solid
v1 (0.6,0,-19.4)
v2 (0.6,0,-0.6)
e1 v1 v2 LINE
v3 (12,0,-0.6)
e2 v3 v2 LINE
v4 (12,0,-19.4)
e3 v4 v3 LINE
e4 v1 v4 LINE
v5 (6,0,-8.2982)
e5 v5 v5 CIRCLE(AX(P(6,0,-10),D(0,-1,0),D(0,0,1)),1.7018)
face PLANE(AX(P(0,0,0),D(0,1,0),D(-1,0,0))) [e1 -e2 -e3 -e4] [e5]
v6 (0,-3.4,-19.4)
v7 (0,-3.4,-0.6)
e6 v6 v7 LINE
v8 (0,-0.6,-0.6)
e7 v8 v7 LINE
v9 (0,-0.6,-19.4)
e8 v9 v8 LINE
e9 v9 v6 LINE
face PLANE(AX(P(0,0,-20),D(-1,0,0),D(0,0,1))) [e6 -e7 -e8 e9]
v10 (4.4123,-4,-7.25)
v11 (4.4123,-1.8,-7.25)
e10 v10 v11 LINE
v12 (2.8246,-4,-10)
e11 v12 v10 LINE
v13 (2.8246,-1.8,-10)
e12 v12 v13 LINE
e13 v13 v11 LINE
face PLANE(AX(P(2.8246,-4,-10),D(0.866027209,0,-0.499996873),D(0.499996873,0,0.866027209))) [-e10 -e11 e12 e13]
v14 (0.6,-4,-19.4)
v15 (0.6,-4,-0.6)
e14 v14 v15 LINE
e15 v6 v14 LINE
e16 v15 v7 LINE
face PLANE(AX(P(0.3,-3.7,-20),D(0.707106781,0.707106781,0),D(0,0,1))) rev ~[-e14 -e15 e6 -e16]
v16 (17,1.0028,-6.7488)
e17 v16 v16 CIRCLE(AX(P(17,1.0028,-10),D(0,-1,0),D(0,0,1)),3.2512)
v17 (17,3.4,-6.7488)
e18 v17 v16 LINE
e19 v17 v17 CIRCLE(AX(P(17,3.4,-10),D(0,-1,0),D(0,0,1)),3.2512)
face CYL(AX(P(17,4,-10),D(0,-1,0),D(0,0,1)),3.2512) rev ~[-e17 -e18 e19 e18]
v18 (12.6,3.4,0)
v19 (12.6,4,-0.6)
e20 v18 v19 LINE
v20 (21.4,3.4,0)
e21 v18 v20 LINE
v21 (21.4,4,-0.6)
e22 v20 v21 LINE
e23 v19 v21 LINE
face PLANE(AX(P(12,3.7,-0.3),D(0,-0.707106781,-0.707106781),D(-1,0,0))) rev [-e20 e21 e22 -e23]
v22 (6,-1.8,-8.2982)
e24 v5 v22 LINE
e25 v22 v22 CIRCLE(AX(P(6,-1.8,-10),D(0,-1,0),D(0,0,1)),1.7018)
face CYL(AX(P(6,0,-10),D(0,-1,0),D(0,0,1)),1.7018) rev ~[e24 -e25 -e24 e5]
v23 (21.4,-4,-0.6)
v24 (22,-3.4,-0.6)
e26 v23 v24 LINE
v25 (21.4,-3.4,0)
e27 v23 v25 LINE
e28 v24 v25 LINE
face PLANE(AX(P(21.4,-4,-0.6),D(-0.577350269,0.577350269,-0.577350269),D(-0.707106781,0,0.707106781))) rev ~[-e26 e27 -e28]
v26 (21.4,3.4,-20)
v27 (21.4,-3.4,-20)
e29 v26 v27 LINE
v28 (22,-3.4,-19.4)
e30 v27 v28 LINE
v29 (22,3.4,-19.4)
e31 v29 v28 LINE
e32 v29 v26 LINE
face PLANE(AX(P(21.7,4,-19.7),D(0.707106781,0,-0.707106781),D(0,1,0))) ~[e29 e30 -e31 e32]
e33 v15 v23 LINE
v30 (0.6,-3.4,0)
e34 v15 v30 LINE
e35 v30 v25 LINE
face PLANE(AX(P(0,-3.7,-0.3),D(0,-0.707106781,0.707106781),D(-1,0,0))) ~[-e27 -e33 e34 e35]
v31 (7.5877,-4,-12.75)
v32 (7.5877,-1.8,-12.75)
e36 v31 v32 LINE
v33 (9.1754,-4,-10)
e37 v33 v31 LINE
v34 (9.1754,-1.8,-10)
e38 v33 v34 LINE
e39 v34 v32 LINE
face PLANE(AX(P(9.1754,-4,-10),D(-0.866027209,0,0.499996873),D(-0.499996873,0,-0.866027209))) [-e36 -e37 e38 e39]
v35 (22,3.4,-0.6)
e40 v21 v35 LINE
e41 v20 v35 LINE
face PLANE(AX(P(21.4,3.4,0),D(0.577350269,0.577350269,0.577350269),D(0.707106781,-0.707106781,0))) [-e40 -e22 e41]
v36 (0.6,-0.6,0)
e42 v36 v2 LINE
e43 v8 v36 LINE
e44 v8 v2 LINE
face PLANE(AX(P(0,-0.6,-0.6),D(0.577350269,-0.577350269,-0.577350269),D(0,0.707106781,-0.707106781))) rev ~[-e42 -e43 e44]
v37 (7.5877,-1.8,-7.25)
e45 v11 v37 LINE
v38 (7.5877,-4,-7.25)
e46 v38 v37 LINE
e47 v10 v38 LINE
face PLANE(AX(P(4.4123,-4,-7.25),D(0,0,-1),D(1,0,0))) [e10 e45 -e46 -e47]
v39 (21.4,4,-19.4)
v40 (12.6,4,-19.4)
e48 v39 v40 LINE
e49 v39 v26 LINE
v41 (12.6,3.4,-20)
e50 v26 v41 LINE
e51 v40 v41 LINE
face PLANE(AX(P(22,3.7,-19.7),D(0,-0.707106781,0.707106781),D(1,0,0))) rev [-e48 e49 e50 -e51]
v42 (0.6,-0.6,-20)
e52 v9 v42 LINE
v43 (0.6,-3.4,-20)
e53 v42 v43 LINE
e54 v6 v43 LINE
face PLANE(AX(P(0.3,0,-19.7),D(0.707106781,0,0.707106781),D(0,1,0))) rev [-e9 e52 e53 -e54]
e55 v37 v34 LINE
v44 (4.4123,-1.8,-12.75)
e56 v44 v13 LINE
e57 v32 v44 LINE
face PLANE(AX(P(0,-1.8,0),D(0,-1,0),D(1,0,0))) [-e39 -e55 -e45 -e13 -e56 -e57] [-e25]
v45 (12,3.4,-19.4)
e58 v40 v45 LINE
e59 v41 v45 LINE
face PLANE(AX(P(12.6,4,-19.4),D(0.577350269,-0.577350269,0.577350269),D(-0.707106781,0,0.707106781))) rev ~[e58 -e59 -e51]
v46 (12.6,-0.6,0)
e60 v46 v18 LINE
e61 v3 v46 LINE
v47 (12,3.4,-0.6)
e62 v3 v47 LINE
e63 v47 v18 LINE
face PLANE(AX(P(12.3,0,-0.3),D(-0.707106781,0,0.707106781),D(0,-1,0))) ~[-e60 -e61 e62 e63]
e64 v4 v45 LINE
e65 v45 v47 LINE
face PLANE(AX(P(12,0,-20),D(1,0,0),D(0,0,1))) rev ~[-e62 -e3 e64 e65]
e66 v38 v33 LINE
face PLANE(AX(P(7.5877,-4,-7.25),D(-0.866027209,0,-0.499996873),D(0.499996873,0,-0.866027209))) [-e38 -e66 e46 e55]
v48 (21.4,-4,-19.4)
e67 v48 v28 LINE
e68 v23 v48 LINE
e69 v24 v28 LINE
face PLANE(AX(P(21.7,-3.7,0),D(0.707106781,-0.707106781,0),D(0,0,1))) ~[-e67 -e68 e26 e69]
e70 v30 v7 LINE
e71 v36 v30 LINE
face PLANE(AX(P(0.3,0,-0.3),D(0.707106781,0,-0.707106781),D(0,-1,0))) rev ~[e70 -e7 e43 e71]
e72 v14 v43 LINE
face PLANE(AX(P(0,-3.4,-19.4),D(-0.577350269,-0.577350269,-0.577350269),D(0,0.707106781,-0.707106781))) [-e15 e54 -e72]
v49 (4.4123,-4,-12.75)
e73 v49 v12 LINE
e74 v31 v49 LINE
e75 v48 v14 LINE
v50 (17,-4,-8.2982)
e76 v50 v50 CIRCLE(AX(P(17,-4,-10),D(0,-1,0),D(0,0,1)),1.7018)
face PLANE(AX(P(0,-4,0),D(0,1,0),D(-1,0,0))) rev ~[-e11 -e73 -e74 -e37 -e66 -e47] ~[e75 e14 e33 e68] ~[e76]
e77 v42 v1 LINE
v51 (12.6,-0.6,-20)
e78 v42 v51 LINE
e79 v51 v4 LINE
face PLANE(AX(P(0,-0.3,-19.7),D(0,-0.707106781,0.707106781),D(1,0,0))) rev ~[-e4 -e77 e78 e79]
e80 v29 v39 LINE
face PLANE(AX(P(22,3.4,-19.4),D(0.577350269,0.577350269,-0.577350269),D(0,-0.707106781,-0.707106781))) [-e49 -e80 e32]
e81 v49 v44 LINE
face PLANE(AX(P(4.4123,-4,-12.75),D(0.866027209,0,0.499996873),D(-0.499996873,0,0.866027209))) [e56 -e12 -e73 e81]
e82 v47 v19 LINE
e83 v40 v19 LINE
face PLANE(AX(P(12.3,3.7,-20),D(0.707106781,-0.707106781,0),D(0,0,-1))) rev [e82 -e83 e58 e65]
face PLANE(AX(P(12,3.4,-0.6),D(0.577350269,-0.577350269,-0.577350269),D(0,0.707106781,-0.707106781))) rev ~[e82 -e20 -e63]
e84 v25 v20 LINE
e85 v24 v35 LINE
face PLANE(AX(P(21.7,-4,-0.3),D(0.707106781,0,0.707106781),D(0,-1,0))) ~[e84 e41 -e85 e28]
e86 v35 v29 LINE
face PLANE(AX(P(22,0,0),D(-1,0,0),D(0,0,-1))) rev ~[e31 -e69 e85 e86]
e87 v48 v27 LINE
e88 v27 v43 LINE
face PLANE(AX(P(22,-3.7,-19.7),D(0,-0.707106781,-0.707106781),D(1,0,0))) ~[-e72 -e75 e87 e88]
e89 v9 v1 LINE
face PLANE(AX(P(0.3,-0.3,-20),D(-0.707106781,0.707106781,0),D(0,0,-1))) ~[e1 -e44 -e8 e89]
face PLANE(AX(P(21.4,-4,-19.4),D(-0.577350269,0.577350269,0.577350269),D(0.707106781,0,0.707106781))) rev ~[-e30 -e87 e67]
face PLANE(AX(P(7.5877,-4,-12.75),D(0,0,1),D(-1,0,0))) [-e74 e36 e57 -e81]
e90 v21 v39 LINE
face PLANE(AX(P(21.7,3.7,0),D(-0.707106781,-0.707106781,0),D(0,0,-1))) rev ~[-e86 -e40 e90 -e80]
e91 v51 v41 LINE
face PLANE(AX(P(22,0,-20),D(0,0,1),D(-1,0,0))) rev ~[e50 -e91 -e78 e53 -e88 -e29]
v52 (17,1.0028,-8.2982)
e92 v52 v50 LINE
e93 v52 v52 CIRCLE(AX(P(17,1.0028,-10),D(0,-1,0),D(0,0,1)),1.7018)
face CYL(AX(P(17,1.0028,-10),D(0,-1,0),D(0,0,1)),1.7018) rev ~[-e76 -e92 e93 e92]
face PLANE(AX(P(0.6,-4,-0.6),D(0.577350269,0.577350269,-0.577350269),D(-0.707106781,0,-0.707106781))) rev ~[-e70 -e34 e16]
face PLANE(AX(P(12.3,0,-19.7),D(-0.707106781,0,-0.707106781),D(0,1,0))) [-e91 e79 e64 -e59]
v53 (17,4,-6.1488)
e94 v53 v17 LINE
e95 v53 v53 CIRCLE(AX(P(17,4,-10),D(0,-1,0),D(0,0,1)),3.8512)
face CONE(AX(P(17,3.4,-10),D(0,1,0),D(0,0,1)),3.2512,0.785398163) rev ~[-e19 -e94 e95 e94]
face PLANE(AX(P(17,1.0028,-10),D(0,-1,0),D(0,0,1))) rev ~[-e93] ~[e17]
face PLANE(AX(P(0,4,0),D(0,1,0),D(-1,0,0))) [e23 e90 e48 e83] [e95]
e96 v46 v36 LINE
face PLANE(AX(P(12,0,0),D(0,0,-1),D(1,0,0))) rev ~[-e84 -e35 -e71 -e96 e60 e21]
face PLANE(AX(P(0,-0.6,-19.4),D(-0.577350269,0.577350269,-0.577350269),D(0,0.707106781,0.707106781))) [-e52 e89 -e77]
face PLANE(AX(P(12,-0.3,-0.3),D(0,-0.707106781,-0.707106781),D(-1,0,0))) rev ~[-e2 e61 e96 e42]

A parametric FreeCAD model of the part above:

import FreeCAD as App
import Part
import Sketcher
Q = App.Units.Quantity


def edges_at(feature, points):
    """Names of the edges that pass closest to the given points."""
    edges = feature.Shape.Edges
    near = lambda p: min(range(len(edges)), key=lambda i: edges[i].distToShape(Part.Vertex(*p))[0])
    return sorted({f"Edge{near(p) + 1}" for p in points})

doc = App.newDocument("Part")
body = doc.addObject("PartDesign::Body", "Body")

sketch1 = body.newObject("Sketcher::SketchObject", "Sketch")
sketch1.AttachmentSupport = (doc.getObject("XZ_Plane"), [""])
sketch1.MapMode = "FlatFace"
sketch1.addGeometry(Part.LineSegment(App.Vector(0, -20, 0), App.Vector(0, 0, 0)), False)
sketch1.addGeometry(Part.LineSegment(App.Vector(0, 0, 0), App.Vector(22, 0, 0)), False)
sketch1.addGeometry(Part.LineSegment(App.Vector(22, 0, 0), App.Vector(22, -20, 0)), False)
sketch1.addGeometry(Part.LineSegment(App.Vector(22, -20, 0), App.Vector(0, -20, 0)), False)
sketch1.addConstraint(Sketcher.Constraint("Coincident", 0, 2, 1, 1))
sketch1.addConstraint(Sketcher.Constraint("Coincident", 1, 2, 2, 1))
sketch1.addConstraint(Sketcher.Constraint("Coincident", 2, 2, 3, 1))
sketch1.addConstraint(Sketcher.Constraint("Coincident", 3, 2, 0, 1))
sketch1.addConstraint(Sketcher.Constraint("Vertical", 0))
sketch1.addConstraint(Sketcher.Constraint("Horizontal", 1))
sketch1.addConstraint(Sketcher.Constraint("Vertical", 2))
sketch1.addConstraint(Sketcher.Constraint("Horizontal", 3))
sketch1.addConstraint(Sketcher.Constraint("Coincident", 0, 2, -1, 1))
sketch1.addConstraint(Sketcher.Constraint("DistanceY", 0, 1, 0, 2, 20.0))
sketch1.addConstraint(Sketcher.Constraint("DistanceX", 1, 1, 1, 2, 22.0))
pad1 = body.newObject("PartDesign::Pad", "Pad")
pad1.Profile = sketch1
pad1.Length = 4

sketch2 = body.newObject("Sketcher::SketchObject", "Sketch001")
sketch2.AttachmentSupport = (doc.getObject("XZ_Plane"), [""])
sketch2.MapMode = "FlatFace"
sketch2.addGeometry(Part.Circle(App.Vector(6, -10, 0), App.Vector(0, 0, 1), 1.7), False)
sketch2.addConstraint(Sketcher.Constraint("DistanceX", -1, 1, 0, 3, 6.0))
sketch2.addConstraint(Sketcher.Constraint("DistanceY", 0, 3, -1, 1, 10.0))
sketch2.addConstraint(Sketcher.Constraint("Diameter", 0, 3.4036))
doc.recompute()
hole = body.newObject("PartDesign::Hole", "Hole")
hole.Profile = sketch2
hole.ThreadType = "None"
hole.Diameter = 3.4036
hole.DepthType = "ThroughAll"
hole.Reversed = True

sketch3 = body.newObject("Sketcher::SketchObject", "Sketch002")
sketch3.AttachmentSupport = (doc.getObject("XZ_Plane"), [""])
sketch3.MapMode = "FlatFace"
sketch3.AttachmentOffset = App.Placement(App.Vector(0, 0, 4), App.Rotation())
sketch3.addGeometry(Part.LineSegment(App.Vector(7.6, -12.8, 0), App.Vector(9.2, -10, 0)), False)
sketch3.addGeometry(Part.LineSegment(App.Vector(9.2, -10, 0), App.Vector(7.6, -7.2, 0)), False)
sketch3.addGeometry(Part.LineSegment(App.Vector(7.6, -7.2, 0), App.Vector(4.4, -7.2, 0)), False)
sketch3.addGeometry(Part.LineSegment(App.Vector(4.4, -7.2, 0), App.Vector(2.8, -10, 0)), False)
sketch3.addGeometry(Part.LineSegment(App.Vector(2.8, -10, 0), App.Vector(4.4, -12.8, 0)), False)
sketch3.addGeometry(Part.LineSegment(App.Vector(4.4, -12.8, 0), App.Vector(7.6, -12.8, 0)), False)
sketch3.addConstraint(Sketcher.Constraint("Coincident", 0, 2, 1, 1))
sketch3.addConstraint(Sketcher.Constraint("Coincident", 1, 2, 2, 1))
sketch3.addConstraint(Sketcher.Constraint("Coincident", 2, 2, 3, 1))
sketch3.addConstraint(Sketcher.Constraint("Coincident", 3, 2, 4, 1))
sketch3.addConstraint(Sketcher.Constraint("Coincident", 4, 2, 5, 1))
sketch3.addConstraint(Sketcher.Constraint("Coincident", 5, 2, 0, 1))
sketch3.addConstraint(Sketcher.Constraint("Horizontal", 2))
sketch3.addConstraint(Sketcher.Constraint("Horizontal", 5))
sketch3.addConstraint(Sketcher.Constraint("Parallel", 0, 3))
sketch3.addConstraint(Sketcher.Constraint("Parallel", 1, 4))
sketch3.addConstraint(Sketcher.Constraint("Horizontal", 0, 2, 3, 2))
sketch3.addConstraint(Sketcher.Constraint("Vertical", 2, 2, 4, 2))
sketch3.addConstraint(Sketcher.Constraint("Vertical", 1, 2, 5, 2))
sketch3.addConstraint(Sketcher.Constraint("DistanceY", 4, 2, 2, 2, 5.5))
sketch3.addConstraint(Sketcher.Constraint("Angle", 0, Q("60.0002 deg")))
sketch3.addConstraint(Sketcher.Constraint("DistanceY", 0, 2, -1, 1, 10.0))
sketch3.addConstraint(Sketcher.Constraint("DistanceX", 2, 2, 2, 1, 3.1754))
sketch3.addConstraint(Sketcher.Constraint("DistanceX", -1, 1, 0, 2, 9.1754))
pocket1 = body.newObject("PartDesign::Pocket", "Pocket")
pocket1.Profile = sketch3
pocket1.Length = 2.2

sketch4 = body.newObject("Sketcher::SketchObject", "Sketch003")
sketch4.AttachmentSupport = (doc.getObject("XZ_Plane"), [""])
sketch4.MapMode = "FlatFace"
sketch4.addGeometry(Part.LineSegment(App.Vector(12, -20, 0), App.Vector(12, 0, 0)), False)
sketch4.addGeometry(Part.LineSegment(App.Vector(12, 0, 0), App.Vector(22, 0, 0)), False)
sketch4.addGeometry(Part.LineSegment(App.Vector(22, 0, 0), App.Vector(22, -20, 0)), False)
sketch4.addGeometry(Part.LineSegment(App.Vector(22, -20, 0), App.Vector(12, -20, 0)), False)
sketch4.addConstraint(Sketcher.Constraint("Coincident", 0, 2, 1, 1))
sketch4.addConstraint(Sketcher.Constraint("Coincident", 1, 2, 2, 1))
sketch4.addConstraint(Sketcher.Constraint("Coincident", 2, 2, 3, 1))
sketch4.addConstraint(Sketcher.Constraint("Coincident", 3, 2, 0, 1))
sketch4.addConstraint(Sketcher.Constraint("Vertical", 0))
sketch4.addConstraint(Sketcher.Constraint("Horizontal", 1))
sketch4.addConstraint(Sketcher.Constraint("Vertical", 2))
sketch4.addConstraint(Sketcher.Constraint("Horizontal", 3))
sketch4.addConstraint(Sketcher.Constraint("PointOnObject", 0, 2, -1))
sketch4.addConstraint(Sketcher.Constraint("DistanceY", 0, 1, 0, 2, 20.0))
sketch4.addConstraint(Sketcher.Constraint("DistanceX", -1, 1, 0, 2, 12.0))
sketch4.addConstraint(Sketcher.Constraint("DistanceX", 1, 1, 1, 2, 10.0))
pad2 = body.newObject("PartDesign::Pad", "Pad001")
pad2.Profile = sketch4
pad2.Length = 4
pad2.Reversed = True

sketch5 = body.newObject("Sketcher::SketchObject", "Sketch004")
sketch5.AttachmentSupport = (doc.getObject("XZ_Plane"), [""])
sketch5.MapMode = "FlatFace"
sketch5.AttachmentOffset = App.Placement(App.Vector(0, 0, -4), App.Rotation())
sketch5.addGeometry(Part.Circle(App.Vector(17, -10, 0), App.Vector(0, 0, 1), 1.7), False)
sketch5.addConstraint(Sketcher.Constraint("DistanceX", -1, 1, 0, 3, 17.0))
sketch5.addConstraint(Sketcher.Constraint("DistanceY", 0, 3, -1, 1, 10.0))
sketch5.addConstraint(Sketcher.Constraint("Diameter", 0, 3.4036))
doc.recompute()
hole2 = body.newObject("PartDesign::Hole", "Hole001")
hole2.Profile = sketch5
hole2.ThreadType = "None"
hole2.Diameter = 3.4036
hole2.DepthType = "ThroughAll"
hole2.HoleCutType = "Counterbore"
hole2.HoleCutDiameter = 6.5024
hole2.HoleCutDepth = 2.9972
hole2.Reversed = True
doc.recompute()

chamfer = body.newObject("PartDesign::Chamfer", "Chamfer")
chamfer.Base = (hole2, edges_at(hole2, [
    (6, 0, -20),
    (12, 2, -20),
    (17, 4, -20),
    (22, 4, -10),
    (17, 4, 0),
    (12, 2, 0),
    (6, 0, 0),
    (0, -2, 0),
    (22, 0, 0),
    (22, 0, -20),
    (11, -4, -20),
    (22, -4, -10),
    (11, -4, 0),
    (0, -4, -10),
    (0, -2, -20),
    (17, 4, -13.251),
    (0, 0, -10),
    (12, 4, -10),
]))
chamfer.Size = 0.6

doc.recompute()
